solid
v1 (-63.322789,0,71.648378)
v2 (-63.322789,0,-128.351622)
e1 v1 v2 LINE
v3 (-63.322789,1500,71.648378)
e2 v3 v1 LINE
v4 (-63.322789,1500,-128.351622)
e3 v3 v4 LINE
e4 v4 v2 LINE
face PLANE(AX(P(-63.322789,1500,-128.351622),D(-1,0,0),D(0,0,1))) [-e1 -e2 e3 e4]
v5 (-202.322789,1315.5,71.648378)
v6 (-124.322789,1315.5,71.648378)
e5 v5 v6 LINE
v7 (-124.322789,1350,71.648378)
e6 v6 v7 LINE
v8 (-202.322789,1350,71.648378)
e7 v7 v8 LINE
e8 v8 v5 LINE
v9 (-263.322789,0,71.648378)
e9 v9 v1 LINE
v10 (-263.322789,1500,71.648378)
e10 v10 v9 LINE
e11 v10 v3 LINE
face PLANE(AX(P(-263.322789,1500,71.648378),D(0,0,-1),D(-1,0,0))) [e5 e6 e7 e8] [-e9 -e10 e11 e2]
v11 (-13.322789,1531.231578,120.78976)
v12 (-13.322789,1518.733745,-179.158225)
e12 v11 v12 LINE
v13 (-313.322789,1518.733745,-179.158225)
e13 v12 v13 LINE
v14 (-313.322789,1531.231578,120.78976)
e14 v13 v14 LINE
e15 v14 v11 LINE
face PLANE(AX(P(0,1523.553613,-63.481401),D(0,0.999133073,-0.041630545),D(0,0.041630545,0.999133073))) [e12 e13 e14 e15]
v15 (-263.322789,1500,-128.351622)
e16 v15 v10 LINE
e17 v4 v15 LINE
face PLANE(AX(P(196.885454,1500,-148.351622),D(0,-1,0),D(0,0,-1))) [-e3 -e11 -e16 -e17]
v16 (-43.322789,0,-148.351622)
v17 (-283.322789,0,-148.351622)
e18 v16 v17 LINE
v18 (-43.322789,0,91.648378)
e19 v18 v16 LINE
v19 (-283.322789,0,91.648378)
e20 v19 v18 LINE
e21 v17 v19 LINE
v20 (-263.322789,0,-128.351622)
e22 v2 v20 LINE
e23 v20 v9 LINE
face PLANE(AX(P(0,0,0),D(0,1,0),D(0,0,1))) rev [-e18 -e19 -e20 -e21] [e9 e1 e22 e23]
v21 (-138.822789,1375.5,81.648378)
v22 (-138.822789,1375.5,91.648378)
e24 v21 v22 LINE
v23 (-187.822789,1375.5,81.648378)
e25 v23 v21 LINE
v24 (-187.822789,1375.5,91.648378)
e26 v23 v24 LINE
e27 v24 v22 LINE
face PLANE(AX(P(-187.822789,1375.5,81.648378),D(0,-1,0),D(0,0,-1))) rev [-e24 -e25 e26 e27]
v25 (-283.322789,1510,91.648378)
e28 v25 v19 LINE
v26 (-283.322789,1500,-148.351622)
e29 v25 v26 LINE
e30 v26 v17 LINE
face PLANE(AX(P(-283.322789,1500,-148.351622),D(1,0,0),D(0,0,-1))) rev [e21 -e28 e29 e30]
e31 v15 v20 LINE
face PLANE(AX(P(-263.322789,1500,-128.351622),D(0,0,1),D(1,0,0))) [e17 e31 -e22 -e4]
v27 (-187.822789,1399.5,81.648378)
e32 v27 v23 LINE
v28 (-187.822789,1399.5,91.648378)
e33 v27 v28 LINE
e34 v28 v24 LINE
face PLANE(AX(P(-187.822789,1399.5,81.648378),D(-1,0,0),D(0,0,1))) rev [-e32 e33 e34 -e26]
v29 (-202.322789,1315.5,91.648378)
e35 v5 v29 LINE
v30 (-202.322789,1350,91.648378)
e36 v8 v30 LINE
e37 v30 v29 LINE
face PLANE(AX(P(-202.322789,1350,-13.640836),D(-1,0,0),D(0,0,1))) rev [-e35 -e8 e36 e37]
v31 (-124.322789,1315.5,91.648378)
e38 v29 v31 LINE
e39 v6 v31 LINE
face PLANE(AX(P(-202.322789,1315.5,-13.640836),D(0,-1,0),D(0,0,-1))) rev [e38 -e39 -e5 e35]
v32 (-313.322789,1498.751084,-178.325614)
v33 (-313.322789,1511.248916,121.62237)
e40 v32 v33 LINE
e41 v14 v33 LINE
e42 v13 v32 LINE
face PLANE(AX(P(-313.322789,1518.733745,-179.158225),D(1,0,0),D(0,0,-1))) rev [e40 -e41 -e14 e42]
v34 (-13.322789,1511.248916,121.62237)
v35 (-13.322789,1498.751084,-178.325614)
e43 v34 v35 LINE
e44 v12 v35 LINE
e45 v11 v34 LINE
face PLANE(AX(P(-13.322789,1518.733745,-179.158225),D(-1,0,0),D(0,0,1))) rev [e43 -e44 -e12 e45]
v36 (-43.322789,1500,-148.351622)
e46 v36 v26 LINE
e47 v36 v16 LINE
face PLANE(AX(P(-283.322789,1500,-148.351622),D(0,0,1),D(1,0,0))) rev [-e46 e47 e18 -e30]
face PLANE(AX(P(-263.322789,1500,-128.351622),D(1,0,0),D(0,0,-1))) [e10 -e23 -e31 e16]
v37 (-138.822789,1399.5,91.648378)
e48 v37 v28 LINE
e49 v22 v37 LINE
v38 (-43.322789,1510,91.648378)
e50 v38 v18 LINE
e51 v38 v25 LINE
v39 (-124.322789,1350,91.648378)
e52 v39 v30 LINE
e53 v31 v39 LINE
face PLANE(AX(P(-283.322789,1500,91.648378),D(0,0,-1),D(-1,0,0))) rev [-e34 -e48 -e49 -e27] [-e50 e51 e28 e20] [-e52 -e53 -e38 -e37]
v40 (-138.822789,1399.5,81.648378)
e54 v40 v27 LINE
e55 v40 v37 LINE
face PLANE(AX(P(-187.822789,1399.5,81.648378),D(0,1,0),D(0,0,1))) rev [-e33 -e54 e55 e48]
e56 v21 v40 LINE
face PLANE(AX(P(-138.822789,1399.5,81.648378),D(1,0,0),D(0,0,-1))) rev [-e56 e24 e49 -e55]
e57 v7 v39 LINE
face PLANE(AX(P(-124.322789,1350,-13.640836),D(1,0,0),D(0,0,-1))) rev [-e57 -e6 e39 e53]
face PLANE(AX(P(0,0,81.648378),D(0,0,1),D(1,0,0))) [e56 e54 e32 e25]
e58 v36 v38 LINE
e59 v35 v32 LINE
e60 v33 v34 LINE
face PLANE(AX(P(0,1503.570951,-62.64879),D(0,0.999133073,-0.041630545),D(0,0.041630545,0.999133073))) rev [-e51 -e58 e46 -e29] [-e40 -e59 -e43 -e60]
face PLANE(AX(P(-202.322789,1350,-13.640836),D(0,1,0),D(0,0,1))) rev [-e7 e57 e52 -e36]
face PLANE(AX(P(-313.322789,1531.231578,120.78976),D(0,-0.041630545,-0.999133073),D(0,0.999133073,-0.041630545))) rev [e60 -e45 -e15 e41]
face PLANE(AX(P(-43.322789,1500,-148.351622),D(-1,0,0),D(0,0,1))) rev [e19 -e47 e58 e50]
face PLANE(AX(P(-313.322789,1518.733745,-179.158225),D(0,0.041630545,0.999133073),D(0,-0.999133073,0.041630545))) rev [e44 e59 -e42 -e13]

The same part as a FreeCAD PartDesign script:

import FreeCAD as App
import Part
import Sketcher
Q = App.Units.Quantity


def add_polygon(sketch, points):
    """Adds a closed chain of lines whose ends are joined by coincident constraints."""
    first, n = sketch.GeometryCount, len(points)
    for a, b in zip(points, points[1:] + points[:1]):
        sketch.addGeometry(Part.LineSegment(App.Vector(*a, 0), App.Vector(*b, 0)), False)
    for i in range(n):
        sketch.addConstraint(Sketcher.Constraint("Coincident", first + i, 2, first + (i + 1) % n, 1))

doc = App.newDocument("Part")
body = doc.addObject("PartDesign::Body", "Body")

# Sketch on XZ plane
sketch1 = doc.addObject("Sketcher::SketchObject", "Sketch")
body.addObject(sketch1)
sketch1.AttachmentSupport = (doc.XZ_Plane, [""])
sketch1.MapMode = "FlatFace"
add_polygon(sketch1, [(-283.322789, -148.351622), (-283.322789, 91.648378), (-43.322789, 91.648378), (-43.322789, -148.351622)])  # lines 0-3
add_polygon(sketch1, [(-63.322789, 71.648378), (-263.322789, 71.648378), (-263.322789, -128.351622), (-63.322789, -128.351622)])  # lines 4-7
sketch1.addConstraint(Sketcher.Constraint("Vertical", 0))
sketch1.addConstraint(Sketcher.Constraint("Horizontal", 1))
sketch1.addConstraint(Sketcher.Constraint("Vertical", 2))
sketch1.addConstraint(Sketcher.Constraint("Horizontal", 3))
sketch1.addConstraint(Sketcher.Constraint("Horizontal", 4))
sketch1.addConstraint(Sketcher.Constraint("Vertical", 5))
sketch1.addConstraint(Sketcher.Constraint("Horizontal", 6))
sketch1.addConstraint(Sketcher.Constraint("Vertical", 7))
sketch1.addConstraint(Sketcher.Constraint("Equal", 3, 0))
sketch1.addConstraint(Sketcher.Constraint("Equal", 6, 5))
sketch1.addConstraint(Sketcher.Constraint("DistanceX", 1, 1, 1, 2, Q("240 mm")))
sketch1.addConstraint(Sketcher.Constraint("DistanceX", 4, 2, 4, 1, Q("200 mm")))
sketch1.addConstraint(Sketcher.Constraint("DistanceX", 0, 2, 4, 2, Q("20 mm")))
sketch1.addConstraint(Sketcher.Constraint("DistanceY", 4, 2, 0, 2, Q("20 mm")))
sketch1.addConstraint(Sketcher.Constraint("DistanceX", 0, 2, -1, 1, Q("283.322789 mm")))
sketch1.addConstraint(Sketcher.Constraint("DistanceY", -1, 1, 0, 2, Q("91.648378 mm")))
pad1 = doc.addObject("PartDesign::Pad", "Pad")
body.addObject(pad1)
pad1.Profile = sketch1
pad1.Length = 1500
pad1.Reversed = True

# Sketch on XY plane
sketch2 = doc.addObject("Sketcher::SketchObject", "Sketch001")
body.addObject(sketch2)
sketch2.AttachmentSupport = (doc.XY_Plane, [""])
sketch2.MapMode = "FlatFace"
sketch2.AttachmentOffset = App.Placement(App.Vector(0, 0, 91.648378), App.Rotation())
add_polygon(sketch2, [(-202.322789, 1350), (-202.322789, 1315.5), (-124.322789, 1315.5), (-124.322789, 1350)])  # lines 0-3
sketch2.addConstraint(Sketcher.Constraint("Vertical", 0))
sketch2.addConstraint(Sketcher.Constraint("Horizontal", 1))
sketch2.addConstraint(Sketcher.Constraint("Vertical", 2))
sketch2.addConstraint(Sketcher.Constraint("Horizontal", 3))
sketch2.addConstraint(Sketcher.Constraint("DistanceX", 1, 1, 1, 2, Q("78 mm")))
sketch2.addConstraint(Sketcher.Constraint("DistanceY", 0, 2, 0, 1, Q("34.5 mm")))
sketch2.addConstraint(Sketcher.Constraint("DistanceY", -1, 1, 2, 2, Q("1350 mm")))
sketch2.addConstraint(Sketcher.Constraint("DistanceX", 0, 2, -1, 1, Q("202.322789 mm")))
pocket1 = doc.addObject("PartDesign::Pocket", "Pocket")
body.addObject(pocket1)
pocket1.Profile = sketch2
pocket1.Length = 20

# Sketch on YZ plane
sketch3 = doc.addObject("Sketcher::SketchObject", "Sketch002")
body.addObject(sketch3)
sketch3.AttachmentSupport = (doc.YZ_Plane, [""])
sketch3.MapMode = "FlatFace"
sketch3.AttachmentOffset = App.Placement(App.Vector(0, 0, -283.322789), App.Rotation())
add_polygon(sketch3, [(1500, -148.351622), (1500, 91.648378), (1510, 91.648378)])  # lines 0-2
sketch3.addConstraint(Sketcher.Constraint("Vertical", 0))
sketch3.addConstraint(Sketcher.Constraint("Horizontal", 1))
sketch3.addConstraint(Sketcher.Constraint("DistanceX", 1, 1, 1, 2, Q("10 mm")))
sketch3.addConstraint(Sketcher.Constraint("DistanceY", 0, 1, 0, 2, Q("240 mm")))
sketch3.addConstraint(Sketcher.Constraint("DistanceX", -1, 1, 0, 2, Q("1500 mm")))
sketch3.addConstraint(Sketcher.Constraint("DistanceY", -1, 1, 0, 2, Q("91.648378 mm")))
pad2 = doc.addObject("PartDesign::Pad", "Pad001")
body.addObject(pad2)
pad2.Profile = sketch3
pad2.Length = 240

# Sketch on an angled plane
sketch4 = doc.addObject("Sketcher::SketchObject", "Sketch003")
body.addObject(sketch4)
sketch4.Placement = App.Placement(App.Vector(0, 1503.570951, -62.64879), App.Rotation(App.Vector(1, 0, 0), App.Vector(0, -0.041630545, -0.999133073), App.Vector(0, 0.999133073, -0.041630545), "ZXY"))
add_polygon(sketch4, [(-313.322789, 115.777195), (-313.322789, -184.431048), (-13.322789, -184.431048), (-13.322789, 115.777195)])  # lines 0-3
sketch4.addConstraint(Sketcher.Constraint("Vertical", 0))
sketch4.addConstraint(Sketcher.Constraint("Horizontal", 1))
sketch4.addConstraint(Sketcher.Constraint("Vertical", 2))
sketch4.addConstraint(Sketcher.Constraint("Horizontal", 3))
sketch4.addConstraint(Sketcher.Constraint("DistanceX", 1, 1, 1, 2, Q("300 mm")))
sketch4.addConstraint(Sketcher.Constraint("DistanceY", 0, 2, 0, 1, Q("300.208243 mm")))
sketch4.addConstraint(Sketcher.Constraint("DistanceX", 0, 2, -1, 1, Q("313.322789 mm")))
sketch4.addConstraint(Sketcher.Constraint("DistanceY", 0, 2, -1, 1, Q("184.431048 mm")))
pad3 = doc.addObject("PartDesign::Pad", "Pad002")
body.addObject(pad3)
pad3.Profile = sketch4
pad3.Length = 20

# Sketch on XY plane
sketch5 = doc.addObject("Sketcher::SketchObject", "Sketch004")
body.addObject(sketch5)
sketch5.AttachmentSupport = (doc.XY_Plane, [""])
sketch5.MapMode = "FlatFace"
sketch5.AttachmentOffset = App.Placement(App.Vector(0, 0, 91.648378), App.Rotation())
add_polygon(sketch5, [(-187.822789, 1399.5), (-187.822789, 1375.5), (-138.822789, 1375.5), (-138.822789, 1399.5)])  # lines 0-3
sketch5.addConstraint(Sketcher.Constraint("Vertical", 0))
sketch5.addConstraint(Sketcher.Constraint("Horizontal", 1))
sketch5.addConstraint(Sketcher.Constraint("Vertical", 2))
sketch5.addConstraint(Sketcher.Constraint("Horizontal", 3))
sketch5.addConstraint(Sketcher.Constraint("DistanceX", 1, 1, 1, 2, Q("49 mm")))
sketch5.addConstraint(Sketcher.Constraint("DistanceY", 0, 2, 0, 1, Q("24 mm")))
sketch5.addConstraint(Sketcher.Constraint("DistanceY", -1, 1, 0, 2, Q("1375.5 mm")))
sketch5.addConstraint(Sketcher.Constraint("DistanceX", 0, 2, -1, 1, Q("187.822789 mm")))
pocket2 = doc.addObject("PartDesign::Pocket", "Pocket001")
body.addObject(pocket2)
pocket2.Profile = sketch5
pocket2.Length = 10

doc.recompute()
